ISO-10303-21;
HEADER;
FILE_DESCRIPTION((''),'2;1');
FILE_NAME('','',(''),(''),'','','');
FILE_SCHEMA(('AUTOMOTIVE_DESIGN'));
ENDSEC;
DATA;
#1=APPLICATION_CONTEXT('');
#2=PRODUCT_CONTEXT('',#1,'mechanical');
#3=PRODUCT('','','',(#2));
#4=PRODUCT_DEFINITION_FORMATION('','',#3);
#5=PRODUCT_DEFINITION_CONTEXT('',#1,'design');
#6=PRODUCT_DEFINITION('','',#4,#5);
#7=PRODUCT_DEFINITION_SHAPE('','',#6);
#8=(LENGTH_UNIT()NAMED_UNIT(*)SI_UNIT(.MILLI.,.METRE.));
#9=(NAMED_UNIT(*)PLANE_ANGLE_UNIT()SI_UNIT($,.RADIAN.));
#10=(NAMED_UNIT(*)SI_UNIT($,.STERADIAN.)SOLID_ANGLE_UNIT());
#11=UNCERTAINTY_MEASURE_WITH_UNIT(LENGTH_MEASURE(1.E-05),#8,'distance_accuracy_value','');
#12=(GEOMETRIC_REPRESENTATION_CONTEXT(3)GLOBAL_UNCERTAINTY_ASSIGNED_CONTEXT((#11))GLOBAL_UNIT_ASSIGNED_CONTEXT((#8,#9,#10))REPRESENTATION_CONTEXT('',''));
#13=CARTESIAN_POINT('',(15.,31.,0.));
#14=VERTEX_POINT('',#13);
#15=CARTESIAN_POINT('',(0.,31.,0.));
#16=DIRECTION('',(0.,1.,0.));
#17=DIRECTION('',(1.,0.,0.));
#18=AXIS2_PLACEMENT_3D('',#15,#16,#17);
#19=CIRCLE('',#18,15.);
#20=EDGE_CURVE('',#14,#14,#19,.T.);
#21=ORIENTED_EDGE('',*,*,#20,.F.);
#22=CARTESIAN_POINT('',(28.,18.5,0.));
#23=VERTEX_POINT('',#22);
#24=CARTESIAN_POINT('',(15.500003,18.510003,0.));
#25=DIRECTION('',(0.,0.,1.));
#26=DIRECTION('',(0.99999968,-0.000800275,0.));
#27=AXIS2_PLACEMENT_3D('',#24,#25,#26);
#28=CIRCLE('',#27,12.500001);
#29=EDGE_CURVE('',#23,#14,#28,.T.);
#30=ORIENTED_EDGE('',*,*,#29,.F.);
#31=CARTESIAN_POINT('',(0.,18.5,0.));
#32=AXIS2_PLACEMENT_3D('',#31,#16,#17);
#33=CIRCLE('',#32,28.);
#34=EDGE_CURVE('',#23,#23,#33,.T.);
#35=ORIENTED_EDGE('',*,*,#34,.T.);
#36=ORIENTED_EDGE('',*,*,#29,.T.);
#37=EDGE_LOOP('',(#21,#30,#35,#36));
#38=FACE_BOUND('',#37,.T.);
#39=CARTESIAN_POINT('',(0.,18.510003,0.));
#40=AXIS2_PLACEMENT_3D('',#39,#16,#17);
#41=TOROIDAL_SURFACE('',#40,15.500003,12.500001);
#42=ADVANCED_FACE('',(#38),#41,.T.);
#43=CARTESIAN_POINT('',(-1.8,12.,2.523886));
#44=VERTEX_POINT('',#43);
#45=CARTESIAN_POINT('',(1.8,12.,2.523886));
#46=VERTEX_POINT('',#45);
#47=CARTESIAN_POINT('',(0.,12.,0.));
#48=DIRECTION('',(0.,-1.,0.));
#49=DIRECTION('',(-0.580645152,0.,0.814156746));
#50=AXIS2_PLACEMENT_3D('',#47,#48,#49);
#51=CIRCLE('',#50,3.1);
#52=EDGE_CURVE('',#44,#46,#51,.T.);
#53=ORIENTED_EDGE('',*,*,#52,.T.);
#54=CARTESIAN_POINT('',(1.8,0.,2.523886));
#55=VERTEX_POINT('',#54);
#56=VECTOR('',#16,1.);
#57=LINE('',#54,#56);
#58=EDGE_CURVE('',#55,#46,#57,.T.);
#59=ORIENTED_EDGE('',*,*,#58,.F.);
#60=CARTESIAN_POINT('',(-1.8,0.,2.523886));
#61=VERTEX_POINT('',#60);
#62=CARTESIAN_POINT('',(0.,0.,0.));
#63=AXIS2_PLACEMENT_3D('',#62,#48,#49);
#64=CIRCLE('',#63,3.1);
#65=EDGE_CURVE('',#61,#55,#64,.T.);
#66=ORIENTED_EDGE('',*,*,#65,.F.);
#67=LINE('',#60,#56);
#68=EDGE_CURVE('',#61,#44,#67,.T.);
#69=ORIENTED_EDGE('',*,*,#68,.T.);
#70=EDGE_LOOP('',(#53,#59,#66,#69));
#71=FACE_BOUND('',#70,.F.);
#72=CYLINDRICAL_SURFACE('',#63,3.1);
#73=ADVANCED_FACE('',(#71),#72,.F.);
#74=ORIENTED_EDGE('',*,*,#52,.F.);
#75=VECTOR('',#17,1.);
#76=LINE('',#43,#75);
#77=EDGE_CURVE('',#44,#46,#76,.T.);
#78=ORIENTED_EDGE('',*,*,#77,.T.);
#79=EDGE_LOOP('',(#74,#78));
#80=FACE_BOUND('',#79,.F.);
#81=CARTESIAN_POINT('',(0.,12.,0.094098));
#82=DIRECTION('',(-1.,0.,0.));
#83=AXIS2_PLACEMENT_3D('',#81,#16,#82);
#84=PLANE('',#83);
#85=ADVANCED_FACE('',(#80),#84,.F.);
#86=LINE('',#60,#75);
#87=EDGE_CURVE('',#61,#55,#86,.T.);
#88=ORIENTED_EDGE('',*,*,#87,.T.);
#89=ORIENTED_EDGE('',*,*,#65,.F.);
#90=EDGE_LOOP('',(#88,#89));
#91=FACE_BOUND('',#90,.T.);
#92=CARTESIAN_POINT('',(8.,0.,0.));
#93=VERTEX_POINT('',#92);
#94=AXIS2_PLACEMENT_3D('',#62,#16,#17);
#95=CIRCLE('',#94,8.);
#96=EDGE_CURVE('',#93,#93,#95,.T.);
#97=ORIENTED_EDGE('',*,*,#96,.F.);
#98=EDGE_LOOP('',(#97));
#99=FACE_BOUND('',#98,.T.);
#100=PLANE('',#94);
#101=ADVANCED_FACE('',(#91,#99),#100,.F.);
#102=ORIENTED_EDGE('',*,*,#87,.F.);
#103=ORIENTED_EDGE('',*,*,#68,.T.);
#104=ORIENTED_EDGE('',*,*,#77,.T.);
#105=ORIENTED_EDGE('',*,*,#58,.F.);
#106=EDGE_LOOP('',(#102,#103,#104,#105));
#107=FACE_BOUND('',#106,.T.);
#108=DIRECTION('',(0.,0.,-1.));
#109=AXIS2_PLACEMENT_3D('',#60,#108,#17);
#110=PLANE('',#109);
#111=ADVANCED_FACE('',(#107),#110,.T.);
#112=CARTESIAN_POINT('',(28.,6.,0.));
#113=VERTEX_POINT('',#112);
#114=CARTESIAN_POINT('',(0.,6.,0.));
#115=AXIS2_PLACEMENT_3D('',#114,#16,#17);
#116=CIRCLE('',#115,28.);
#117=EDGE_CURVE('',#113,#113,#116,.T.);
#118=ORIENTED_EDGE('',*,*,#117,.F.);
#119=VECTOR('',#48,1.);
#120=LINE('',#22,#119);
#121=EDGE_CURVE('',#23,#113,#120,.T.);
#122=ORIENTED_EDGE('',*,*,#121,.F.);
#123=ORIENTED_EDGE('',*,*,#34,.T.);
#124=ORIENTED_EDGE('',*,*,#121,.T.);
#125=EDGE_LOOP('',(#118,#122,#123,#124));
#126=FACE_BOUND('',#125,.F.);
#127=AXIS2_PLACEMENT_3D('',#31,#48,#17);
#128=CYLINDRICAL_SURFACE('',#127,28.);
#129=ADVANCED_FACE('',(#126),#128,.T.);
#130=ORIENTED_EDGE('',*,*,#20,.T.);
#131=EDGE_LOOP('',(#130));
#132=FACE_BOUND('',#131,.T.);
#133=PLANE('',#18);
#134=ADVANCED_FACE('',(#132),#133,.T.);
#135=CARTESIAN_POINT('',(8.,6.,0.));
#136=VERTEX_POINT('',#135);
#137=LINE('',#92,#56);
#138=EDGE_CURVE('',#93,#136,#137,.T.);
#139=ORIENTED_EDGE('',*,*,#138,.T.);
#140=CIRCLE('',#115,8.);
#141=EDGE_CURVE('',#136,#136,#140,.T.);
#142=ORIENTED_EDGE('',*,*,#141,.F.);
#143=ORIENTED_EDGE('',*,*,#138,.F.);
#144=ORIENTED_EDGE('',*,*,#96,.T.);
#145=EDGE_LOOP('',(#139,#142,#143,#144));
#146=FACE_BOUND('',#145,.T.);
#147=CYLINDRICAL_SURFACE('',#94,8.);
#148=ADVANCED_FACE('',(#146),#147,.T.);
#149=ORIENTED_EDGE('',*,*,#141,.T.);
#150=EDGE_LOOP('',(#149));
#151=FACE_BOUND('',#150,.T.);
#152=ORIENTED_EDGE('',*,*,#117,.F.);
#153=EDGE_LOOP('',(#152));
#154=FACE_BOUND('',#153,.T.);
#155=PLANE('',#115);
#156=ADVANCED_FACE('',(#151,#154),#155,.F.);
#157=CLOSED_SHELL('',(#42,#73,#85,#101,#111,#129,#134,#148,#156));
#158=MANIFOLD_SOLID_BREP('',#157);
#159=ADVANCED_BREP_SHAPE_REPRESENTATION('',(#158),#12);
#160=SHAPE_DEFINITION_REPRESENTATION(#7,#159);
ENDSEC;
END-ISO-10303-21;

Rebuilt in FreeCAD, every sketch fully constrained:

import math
import FreeCAD as App
import Part
import Sketcher

V = App.Vector

doc = App.newDocument("Part")
params = doc.addObject("Spreadsheet::Sheet", "Params")
for row, (alias, value) in enumerate([
    ("sketch1_radius", "12.500001 mm"),
    ("sketch1_width", "15 mm"),
    ("sketch1_width2", "8 mm"),
    ("sketch1_width3", "20 mm"),
    ("sketch1_height", "31 mm"),
    ("revolution_angle", "360 deg"),
    ("sketch2_radius", "3.1 mm"),
    ("sketch2_width", "3.6 mm"),
    ("pocket1_length", "12 mm"),
], start=1):
    params.set(f"A{row}", alias)
    params.set(f"B{row}", "=" + value)
    params.setAlias(f"B{row}", alias)

body = doc.addObject("PartDesign::Body", "Body")

# Sketch on XY plane
sketch1 = body.newObject("Sketcher::SketchObject", "Sketch")
sketch1.AttachmentSupport = (doc.getObject("XY_Plane"), [""])
sketch1.MapMode = "FlatFace"
sketch1.addGeometry([
    Part.LineSegment(V(15, 31, 0), V(0, 31, 0)),  # 0
    Part.LineSegment(V(0, 31, 0), V(0, 0, 0)),  # 1
    Part.LineSegment(V(0, 0, 0), V(8, 0, 0)),  # 2
    Part.LineSegment(V(8, 0, 0), V(8, 6, 0)),  # 3
    Part.LineSegment(V(8, 6, 0), V(28, 6, 0)),  # 4
    Part.LineSegment(V(28, 6, 0), V(28, 18.5, 0)),  # 5
    Part.ArcOfCircle(Part.Circle(V(15.500003, 18.510003, 0), V(0, 0, 1), 12.500001), math.radians(-0.045852), math.radians(92.292458)),  # 6
], False)
sketch1.addConstraint([
    Sketcher.Constraint("Coincident", 0, 2, 1, 1),
    Sketcher.Constraint("Coincident", 1, 2, 2, 1),
    Sketcher.Constraint("Coincident", 2, 2, 3, 1),
    Sketcher.Constraint("Coincident", 3, 2, 4, 1),
    Sketcher.Constraint("Coincident", 4, 2, 5, 1),
    Sketcher.Constraint("Coincident", 5, 2, 6, 1),
    Sketcher.Constraint("Coincident", 6, 2, 0, 1),
    Sketcher.Constraint("Horizontal", 0),
    Sketcher.Constraint("Vertical", 1),
    Sketcher.Constraint("Horizontal", 2),
    Sketcher.Constraint("Vertical", 3),
    Sketcher.Constraint("Horizontal", 4),
    Sketcher.Constraint("Vertical", 5),
    Sketcher.Constraint("Coincident", 1, 2, -1, 1),
    Sketcher.Constraint("Radius", 6, 12.500001),
    Sketcher.Constraint("DistanceX", 0, 2, 0, 1, 15.0),
    Sketcher.Constraint("DistanceX", 2, 1, 2, 2, 8.0),
    Sketcher.Constraint("DistanceX", 4, 1, 4, 2, 20.0),
    Sketcher.Constraint("DistanceY", 1, 2, 1, 1, 31.0),
    Sketcher.Constraint("DistanceY", 3, 1, 3, 2, 6.0),
    Sketcher.Constraint("DistanceY", 5, 1, 5, 2, 12.5),
])
sketch1.setExpression("Constraints[14]", "Params.sketch1_radius")
sketch1.setExpression("Constraints[15]", "Params.sketch1_width")
sketch1.setExpression("Constraints[16]", "Params.sketch1_width2")
sketch1.setExpression("Constraints[17]", "Params.sketch1_width3")
sketch1.setExpression("Constraints[18]", "Params.sketch1_height")
revolution = body.newObject("PartDesign::Revolution", "Revolution")
revolution.Profile = sketch1
revolution.ReferenceAxis = (sketch1, ["V_Axis"])
revolution.setExpression("Angle", "Params.revolution_angle")

# Sketch on XZ plane
sketch2 = body.newObject("Sketcher::SketchObject", "Sketch001")
sketch2.AttachmentSupport = (doc.getObject("XZ_Plane"), [""])
sketch2.MapMode = "FlatFace"
sketch2.addGeometry([
    Part.LineSegment(V(1.8, 2.523886, 0), V(-1.8, 2.523886, 0)),
    Part.ArcOfCircle(Part.Circle(V(0, 0, 0), V(0, 0, 1), 3.1), math.radians(125.495932), math.radians(414.504068)),
], False)
sketch2.addConstraint([
    Sketcher.Constraint("Coincident", 0, 1, 1, 2),
    Sketcher.Constraint("Coincident", 1, 1, 0, 2),
    Sketcher.Constraint("Horizontal", 0),
    Sketcher.Constraint("Coincident", 1, 3, -1, 1),
    Sketcher.Constraint("Radius", 1, 3.1),
    Sketcher.Constraint("DistanceX", 0, 2, 0, 1, 3.6),
])
sketch2.setExpression("Constraints[4]", "Params.sketch2_radius")
sketch2.setExpression("Constraints[5]", "Params.sketch2_width")
pocket1 = body.newObject("PartDesign::Pocket", "Pocket")
pocket1.Profile = sketch2
pocket1.setExpression("Length", "Params.pocket1_length")

doc.recompute()
